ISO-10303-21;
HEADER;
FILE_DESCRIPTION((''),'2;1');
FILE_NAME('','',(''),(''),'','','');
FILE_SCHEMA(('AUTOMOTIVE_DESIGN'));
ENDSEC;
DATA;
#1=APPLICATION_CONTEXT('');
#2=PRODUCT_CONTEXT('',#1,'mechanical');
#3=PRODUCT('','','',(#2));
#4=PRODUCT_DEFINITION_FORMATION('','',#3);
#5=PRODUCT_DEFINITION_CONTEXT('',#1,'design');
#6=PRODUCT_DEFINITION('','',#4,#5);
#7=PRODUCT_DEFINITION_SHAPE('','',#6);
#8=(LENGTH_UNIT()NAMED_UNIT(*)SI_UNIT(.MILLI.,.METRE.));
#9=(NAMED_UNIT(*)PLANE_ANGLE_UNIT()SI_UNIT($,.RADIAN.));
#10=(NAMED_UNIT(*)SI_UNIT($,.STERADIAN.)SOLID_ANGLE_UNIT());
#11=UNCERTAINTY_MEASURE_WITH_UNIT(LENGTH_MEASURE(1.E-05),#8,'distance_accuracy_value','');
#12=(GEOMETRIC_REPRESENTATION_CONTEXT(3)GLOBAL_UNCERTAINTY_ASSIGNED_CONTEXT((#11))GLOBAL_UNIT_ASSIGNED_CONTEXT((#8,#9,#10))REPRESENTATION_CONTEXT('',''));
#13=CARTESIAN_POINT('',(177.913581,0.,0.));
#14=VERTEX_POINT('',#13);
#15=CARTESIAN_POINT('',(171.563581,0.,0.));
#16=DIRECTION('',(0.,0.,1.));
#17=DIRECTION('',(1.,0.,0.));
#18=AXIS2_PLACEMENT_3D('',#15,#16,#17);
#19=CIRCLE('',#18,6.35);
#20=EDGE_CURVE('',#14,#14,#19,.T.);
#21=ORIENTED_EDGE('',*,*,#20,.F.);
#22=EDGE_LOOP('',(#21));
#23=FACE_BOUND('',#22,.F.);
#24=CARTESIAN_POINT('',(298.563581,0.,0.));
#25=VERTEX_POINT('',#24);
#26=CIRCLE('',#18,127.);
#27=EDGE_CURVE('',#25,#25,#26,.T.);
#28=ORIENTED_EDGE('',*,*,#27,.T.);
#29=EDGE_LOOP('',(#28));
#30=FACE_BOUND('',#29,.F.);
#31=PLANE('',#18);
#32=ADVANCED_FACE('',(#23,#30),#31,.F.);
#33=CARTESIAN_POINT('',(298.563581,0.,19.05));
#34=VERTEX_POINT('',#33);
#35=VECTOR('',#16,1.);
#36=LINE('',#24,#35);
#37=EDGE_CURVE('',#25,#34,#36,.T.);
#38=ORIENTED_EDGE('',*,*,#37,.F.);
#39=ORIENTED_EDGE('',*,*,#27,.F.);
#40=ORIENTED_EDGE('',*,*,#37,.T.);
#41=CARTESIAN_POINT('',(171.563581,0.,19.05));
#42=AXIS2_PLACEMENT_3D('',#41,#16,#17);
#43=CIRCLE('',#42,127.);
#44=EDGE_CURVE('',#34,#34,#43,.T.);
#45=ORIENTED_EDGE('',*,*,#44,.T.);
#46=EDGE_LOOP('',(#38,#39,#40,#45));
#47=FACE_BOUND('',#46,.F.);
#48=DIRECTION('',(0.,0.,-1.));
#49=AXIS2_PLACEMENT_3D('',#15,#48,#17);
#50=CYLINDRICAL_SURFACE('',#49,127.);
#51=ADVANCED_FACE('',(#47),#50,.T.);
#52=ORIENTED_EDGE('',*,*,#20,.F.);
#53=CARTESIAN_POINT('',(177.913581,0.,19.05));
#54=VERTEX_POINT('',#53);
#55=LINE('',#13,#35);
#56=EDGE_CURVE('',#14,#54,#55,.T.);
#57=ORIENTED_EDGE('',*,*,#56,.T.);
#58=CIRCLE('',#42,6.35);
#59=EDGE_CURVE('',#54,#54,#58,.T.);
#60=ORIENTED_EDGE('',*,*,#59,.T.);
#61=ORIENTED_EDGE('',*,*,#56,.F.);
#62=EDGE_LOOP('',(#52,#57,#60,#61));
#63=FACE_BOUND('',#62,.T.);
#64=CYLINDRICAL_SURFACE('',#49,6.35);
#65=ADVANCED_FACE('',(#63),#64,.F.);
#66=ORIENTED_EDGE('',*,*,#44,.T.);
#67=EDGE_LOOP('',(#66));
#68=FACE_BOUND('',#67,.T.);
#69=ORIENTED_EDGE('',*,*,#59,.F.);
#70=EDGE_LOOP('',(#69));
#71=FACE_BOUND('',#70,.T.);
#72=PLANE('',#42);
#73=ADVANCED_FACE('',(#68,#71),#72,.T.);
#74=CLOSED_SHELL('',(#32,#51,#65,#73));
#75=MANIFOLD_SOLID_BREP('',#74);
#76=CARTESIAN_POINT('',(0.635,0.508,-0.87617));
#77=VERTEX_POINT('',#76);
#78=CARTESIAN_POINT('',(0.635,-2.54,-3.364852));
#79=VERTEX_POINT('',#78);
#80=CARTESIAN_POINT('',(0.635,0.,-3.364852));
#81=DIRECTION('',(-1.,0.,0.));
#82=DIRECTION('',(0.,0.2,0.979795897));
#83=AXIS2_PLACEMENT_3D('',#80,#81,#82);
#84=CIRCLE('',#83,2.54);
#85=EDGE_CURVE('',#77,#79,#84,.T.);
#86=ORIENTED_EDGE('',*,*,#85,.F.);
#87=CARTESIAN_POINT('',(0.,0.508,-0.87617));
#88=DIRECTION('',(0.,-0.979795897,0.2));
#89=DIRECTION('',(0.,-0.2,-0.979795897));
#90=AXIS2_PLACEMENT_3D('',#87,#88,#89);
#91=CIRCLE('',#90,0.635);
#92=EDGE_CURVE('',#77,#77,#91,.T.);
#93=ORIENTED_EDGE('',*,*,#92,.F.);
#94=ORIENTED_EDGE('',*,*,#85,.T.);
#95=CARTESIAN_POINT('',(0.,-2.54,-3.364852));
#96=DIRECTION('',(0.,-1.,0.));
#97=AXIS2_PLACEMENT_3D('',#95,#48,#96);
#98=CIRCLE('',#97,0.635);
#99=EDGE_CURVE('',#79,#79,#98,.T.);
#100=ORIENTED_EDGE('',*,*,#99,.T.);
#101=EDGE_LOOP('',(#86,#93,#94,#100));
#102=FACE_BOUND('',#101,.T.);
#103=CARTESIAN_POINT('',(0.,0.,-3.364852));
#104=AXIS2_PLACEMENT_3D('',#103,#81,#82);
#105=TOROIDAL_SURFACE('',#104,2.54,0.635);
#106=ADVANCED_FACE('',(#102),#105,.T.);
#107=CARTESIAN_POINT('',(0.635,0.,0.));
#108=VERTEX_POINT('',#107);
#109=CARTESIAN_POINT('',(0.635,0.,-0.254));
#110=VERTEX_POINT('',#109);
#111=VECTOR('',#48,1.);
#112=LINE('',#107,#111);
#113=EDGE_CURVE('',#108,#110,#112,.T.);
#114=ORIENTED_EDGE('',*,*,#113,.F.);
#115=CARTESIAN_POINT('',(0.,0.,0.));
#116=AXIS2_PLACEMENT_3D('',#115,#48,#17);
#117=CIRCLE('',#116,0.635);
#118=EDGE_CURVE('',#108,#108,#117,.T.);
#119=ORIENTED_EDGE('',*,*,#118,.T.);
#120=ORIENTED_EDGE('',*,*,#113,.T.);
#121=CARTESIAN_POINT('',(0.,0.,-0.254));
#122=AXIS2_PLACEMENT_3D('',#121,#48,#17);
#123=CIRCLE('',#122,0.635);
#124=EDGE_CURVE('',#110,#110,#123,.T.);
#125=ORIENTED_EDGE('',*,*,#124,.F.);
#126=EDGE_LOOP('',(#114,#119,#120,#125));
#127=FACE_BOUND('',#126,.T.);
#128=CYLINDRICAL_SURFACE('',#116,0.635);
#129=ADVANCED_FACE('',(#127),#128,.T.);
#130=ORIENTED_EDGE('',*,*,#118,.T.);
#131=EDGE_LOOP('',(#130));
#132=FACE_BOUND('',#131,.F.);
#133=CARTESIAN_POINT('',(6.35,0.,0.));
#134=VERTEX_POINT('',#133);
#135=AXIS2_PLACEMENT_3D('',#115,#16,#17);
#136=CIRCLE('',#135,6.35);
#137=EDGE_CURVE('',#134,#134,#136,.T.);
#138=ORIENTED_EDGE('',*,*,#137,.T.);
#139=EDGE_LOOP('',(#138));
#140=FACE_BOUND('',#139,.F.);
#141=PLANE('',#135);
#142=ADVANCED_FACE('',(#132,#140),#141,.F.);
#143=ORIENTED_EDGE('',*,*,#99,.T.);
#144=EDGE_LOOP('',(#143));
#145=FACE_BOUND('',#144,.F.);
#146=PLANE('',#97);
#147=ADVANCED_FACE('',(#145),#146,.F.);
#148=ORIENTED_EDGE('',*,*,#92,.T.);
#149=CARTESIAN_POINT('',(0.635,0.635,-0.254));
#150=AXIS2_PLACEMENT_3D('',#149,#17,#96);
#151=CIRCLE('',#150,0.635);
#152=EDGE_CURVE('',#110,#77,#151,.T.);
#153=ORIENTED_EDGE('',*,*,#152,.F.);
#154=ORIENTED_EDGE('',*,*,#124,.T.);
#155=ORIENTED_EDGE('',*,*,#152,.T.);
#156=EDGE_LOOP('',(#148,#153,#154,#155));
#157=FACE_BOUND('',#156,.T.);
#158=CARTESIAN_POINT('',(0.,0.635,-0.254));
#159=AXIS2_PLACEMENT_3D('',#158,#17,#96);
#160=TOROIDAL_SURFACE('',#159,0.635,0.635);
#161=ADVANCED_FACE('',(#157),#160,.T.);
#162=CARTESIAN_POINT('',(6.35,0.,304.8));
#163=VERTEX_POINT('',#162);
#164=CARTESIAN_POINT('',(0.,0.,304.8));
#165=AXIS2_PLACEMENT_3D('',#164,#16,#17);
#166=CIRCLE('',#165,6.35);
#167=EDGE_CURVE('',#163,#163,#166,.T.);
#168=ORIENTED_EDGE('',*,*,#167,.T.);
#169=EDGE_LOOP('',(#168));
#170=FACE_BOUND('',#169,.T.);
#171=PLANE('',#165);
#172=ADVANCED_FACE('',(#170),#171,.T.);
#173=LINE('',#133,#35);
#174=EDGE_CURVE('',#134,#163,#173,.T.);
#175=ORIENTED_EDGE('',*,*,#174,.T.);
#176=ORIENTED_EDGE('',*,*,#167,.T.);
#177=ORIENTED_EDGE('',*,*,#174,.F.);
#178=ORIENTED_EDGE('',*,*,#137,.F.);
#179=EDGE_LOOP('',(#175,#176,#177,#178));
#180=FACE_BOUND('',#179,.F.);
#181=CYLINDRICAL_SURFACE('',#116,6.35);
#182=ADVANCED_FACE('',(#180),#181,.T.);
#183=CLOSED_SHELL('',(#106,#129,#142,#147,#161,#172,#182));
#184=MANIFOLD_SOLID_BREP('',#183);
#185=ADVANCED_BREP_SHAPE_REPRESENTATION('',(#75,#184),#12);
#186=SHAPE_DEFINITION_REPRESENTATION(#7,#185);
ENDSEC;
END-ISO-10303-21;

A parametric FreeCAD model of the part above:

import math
import FreeCAD as App
import Part
import Sketcher

V = App.Vector
Q = App.Units.Quantity

doc = App.newDocument("Part")
body = doc.addObject("PartDesign::Body", "Body")

sketch1 = body.newObject("Sketcher::SketchObject", "Sketch")
sketch1.AttachmentSupport = (doc.getObject("XY_Plane"), [""])
sketch1.MapMode = "FlatFace"
sketch1.addGeometry(Part.Circle(V(0, 0, 0), V(0, 0, 1), 6), False)
sketch1.addConstraint([
    Sketcher.Constraint("Coincident", 0, 3, -1, 1),
    Sketcher.Constraint("Diameter", 0, Q("0.5 in")),
])
pad1 = body.newObject("PartDesign::Pad", "Pad")
pad1.Profile = sketch1
pad1.Length = Q("12 in")

sketch2 = body.newObject("Sketcher::SketchObject", "Sketch001")
sketch2.AttachmentSupport = (doc.getObject("XY_Plane"), [""])
sketch2.MapMode = "FlatFace"
sketch2.addGeometry(Part.Circle(V(0, 0, 0), V(0, 0, 1), 0.6), False)
sketch2.addConstraint([
    Sketcher.Constraint("Coincident", 0, 3, -1, 1),
    Sketcher.Constraint("Diameter", 0, Q("0.05 in")),
])

sketch3 = body.newObject("Sketcher::SketchObject", "Sketch002")
sketch3.AttachmentSupport = (doc.getObject("YZ_Plane"), [""])
sketch3.MapMode = "FlatFace"
sketch3.addGeometry([
    Part.LineSegment(V(0, 0, 0), V(0, -0.25, 0)),
    Part.ArcOfCircle(Part.Circle(V(0.64, -0.25, 0), V(0, 0, 1), 0.64), math.radians(180), math.radians(258)),
    Part.ArcOfCircle(Part.Circle(V(0, -3.36, 0), V(0, 0, 1), 2.54), math.radians(180), math.radians(438)),
], False)
sketch3.addConstraint([
    Sketcher.Constraint("Tangent", 0, 2, 1, 1),
    Sketcher.Constraint("Tangent", 1, 2, 2, 2),
    Sketcher.Constraint("Vertical", 0),
    Sketcher.Constraint("Coincident", 0, 1, -1, 1),
    Sketcher.Constraint("PointOnObject", 2, 3, -2),
    Sketcher.Constraint("Radius", 2, Q("0.1 in")),
    Sketcher.Constraint("Radius", 1, Q("0.025 in")),
    Sketcher.Constraint("DistanceY", 0, 2, 0, 1, Q("0.01 in")),
    Sketcher.Constraint("DistanceY", 2, 1, -1, 1, 3.364852),
])
doc.recompute()

additivepipe = body.newObject("PartDesign::AdditivePipe", "AdditivePipe")
additivepipe.Profile = sketch2
additivepipe.Spine = (sketch3, ["Edge1", "Edge2", "Edge3"])
body2 = doc.addObject("PartDesign::Body", "Body001")

sketch4 = body2.newObject("Sketcher::SketchObject", "Sketch003")
sketch4.AttachmentSupport = (doc.getObject("XY_Plane001"), [""])
sketch4.MapMode = "FlatFace"
sketch4.addGeometry([
    Part.Circle(V(172, 0, 0), V(0, 0, 1), 127),
    Part.Circle(V(172, 0, 0), V(0, 0, 1), 6),
], False)
sketch4.addConstraint([
    Sketcher.Constraint("Coincident", 1, 3, 0, 3),
    Sketcher.Constraint("PointOnObject", 0, 3, -1),
    Sketcher.Constraint("Diameter", 0, Q("10 in")),
    Sketcher.Constraint("Diameter", 1, Q("0.5 in")),
    Sketcher.Constraint("DistanceX", -1, 1, 0, 3, 171.563581),
])
pad2 = body2.newObject("PartDesign::Pad", "Pad001")
pad2.Profile = sketch4
pad2.Length = Q("0.75 in")

doc.recompute()
